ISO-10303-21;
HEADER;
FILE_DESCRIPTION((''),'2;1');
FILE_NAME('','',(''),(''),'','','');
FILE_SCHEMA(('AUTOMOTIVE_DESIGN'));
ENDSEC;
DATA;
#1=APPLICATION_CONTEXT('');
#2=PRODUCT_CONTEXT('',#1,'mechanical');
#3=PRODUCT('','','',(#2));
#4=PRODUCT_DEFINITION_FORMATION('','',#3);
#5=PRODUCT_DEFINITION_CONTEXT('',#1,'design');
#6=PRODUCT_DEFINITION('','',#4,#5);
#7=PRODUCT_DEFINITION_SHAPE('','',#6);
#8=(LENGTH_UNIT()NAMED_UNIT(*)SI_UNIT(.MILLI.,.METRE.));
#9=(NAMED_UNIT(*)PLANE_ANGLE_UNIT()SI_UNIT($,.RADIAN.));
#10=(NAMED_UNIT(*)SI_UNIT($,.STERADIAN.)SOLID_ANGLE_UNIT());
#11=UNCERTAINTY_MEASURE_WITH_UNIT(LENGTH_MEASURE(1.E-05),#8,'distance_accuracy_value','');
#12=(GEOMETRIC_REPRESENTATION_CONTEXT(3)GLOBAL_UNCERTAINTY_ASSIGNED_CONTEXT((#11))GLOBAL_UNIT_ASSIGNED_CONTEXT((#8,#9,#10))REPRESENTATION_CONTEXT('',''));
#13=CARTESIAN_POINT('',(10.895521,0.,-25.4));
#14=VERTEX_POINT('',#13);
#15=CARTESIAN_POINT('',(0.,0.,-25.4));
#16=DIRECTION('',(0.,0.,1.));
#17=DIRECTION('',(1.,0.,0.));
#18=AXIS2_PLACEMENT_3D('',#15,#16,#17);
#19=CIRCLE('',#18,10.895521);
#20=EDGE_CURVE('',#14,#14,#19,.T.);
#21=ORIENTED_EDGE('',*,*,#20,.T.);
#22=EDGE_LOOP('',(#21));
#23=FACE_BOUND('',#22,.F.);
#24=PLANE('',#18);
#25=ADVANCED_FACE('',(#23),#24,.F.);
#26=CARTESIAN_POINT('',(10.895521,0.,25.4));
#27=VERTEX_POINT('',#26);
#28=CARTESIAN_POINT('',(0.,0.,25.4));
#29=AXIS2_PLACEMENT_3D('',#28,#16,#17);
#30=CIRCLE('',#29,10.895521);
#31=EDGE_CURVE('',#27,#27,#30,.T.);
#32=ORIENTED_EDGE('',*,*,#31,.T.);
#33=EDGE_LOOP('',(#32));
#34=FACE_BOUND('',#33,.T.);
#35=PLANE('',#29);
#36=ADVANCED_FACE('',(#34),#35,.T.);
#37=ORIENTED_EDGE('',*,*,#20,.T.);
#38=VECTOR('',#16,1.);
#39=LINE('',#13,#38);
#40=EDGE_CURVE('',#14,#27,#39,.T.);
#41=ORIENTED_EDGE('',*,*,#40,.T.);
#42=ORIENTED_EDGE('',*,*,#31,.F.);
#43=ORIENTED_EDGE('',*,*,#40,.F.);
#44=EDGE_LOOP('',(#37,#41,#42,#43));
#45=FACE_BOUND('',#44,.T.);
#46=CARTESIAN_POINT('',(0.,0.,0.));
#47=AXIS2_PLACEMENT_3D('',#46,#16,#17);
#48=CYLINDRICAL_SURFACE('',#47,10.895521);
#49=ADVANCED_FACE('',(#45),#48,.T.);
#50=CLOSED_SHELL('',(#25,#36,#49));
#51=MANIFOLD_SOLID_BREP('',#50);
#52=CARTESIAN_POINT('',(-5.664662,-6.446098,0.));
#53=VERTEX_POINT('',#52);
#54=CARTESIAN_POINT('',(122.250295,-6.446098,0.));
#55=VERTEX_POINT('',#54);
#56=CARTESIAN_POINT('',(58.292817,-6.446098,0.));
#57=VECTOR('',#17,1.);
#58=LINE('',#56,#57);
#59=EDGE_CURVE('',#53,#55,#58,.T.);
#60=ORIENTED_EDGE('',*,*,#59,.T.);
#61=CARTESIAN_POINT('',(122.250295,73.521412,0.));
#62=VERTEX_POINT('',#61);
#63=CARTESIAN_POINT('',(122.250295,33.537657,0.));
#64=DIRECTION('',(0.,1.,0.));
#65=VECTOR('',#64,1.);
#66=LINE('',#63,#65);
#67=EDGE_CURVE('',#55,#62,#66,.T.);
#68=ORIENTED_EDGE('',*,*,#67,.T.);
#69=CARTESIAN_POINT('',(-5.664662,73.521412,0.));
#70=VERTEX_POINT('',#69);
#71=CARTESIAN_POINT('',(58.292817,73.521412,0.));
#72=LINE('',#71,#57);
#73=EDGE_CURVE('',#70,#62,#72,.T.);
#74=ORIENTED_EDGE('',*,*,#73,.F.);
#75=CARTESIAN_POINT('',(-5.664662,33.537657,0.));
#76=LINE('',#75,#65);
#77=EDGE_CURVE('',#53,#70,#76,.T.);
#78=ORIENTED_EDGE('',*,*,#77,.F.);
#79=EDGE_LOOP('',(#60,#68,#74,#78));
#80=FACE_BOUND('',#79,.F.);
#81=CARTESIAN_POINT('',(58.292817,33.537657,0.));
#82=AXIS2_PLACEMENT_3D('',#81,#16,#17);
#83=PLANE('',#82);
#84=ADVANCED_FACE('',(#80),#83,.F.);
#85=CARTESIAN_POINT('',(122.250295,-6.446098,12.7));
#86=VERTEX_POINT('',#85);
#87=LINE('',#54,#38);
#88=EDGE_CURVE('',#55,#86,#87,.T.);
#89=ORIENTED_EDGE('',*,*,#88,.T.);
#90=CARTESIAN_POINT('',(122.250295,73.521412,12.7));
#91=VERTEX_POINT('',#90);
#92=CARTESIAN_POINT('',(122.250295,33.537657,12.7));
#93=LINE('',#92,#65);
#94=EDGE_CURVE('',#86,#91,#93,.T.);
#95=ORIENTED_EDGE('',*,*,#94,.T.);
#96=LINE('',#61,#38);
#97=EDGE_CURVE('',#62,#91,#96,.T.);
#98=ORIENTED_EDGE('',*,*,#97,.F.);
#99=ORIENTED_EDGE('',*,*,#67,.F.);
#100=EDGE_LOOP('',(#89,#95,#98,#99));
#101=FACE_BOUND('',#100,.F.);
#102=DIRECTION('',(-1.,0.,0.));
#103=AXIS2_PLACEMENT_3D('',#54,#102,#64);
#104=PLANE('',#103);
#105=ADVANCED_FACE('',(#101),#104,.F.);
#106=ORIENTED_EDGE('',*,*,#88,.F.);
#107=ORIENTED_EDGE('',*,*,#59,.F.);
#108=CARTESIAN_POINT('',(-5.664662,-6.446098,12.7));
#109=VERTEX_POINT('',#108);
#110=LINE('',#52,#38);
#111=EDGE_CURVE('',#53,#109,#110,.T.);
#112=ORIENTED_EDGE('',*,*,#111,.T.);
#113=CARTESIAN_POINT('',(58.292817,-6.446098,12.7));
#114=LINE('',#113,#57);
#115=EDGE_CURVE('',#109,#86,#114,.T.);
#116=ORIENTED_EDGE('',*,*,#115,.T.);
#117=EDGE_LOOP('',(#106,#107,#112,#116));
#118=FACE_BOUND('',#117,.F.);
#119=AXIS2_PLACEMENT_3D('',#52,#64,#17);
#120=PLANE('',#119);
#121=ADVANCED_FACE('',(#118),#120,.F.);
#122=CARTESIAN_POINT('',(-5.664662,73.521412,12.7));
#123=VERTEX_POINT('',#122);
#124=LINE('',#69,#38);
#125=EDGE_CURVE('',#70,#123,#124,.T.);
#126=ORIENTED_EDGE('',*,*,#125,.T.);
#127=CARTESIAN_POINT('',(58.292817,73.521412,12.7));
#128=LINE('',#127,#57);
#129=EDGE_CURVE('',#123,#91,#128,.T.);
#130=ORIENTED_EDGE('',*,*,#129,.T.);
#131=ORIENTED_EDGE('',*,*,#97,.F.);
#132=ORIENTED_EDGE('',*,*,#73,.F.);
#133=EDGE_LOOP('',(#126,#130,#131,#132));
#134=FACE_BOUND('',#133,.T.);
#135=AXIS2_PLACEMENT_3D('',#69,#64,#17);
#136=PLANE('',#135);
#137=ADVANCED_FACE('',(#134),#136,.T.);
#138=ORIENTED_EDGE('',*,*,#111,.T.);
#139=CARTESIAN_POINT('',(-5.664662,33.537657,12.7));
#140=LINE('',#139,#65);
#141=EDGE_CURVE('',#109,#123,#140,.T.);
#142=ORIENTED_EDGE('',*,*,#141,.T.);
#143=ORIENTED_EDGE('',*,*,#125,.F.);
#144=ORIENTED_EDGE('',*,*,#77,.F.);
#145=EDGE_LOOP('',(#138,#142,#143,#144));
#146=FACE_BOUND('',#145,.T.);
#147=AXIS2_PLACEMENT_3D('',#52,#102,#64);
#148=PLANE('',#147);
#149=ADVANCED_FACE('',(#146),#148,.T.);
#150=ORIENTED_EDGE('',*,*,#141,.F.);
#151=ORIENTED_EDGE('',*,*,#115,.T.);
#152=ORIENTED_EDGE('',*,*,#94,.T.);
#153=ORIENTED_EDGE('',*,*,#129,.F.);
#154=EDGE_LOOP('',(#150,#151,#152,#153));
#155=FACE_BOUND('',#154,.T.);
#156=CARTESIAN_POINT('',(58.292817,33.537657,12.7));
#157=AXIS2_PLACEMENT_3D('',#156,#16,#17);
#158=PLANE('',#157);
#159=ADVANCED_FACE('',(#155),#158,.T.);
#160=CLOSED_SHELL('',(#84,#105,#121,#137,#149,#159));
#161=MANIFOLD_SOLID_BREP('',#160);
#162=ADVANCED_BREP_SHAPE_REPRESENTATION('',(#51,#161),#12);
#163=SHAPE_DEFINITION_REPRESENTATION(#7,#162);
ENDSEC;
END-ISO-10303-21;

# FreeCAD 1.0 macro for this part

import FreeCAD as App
import Part
import Sketcher
from FreeCAD import Vector
Q = App.Units.Quantity


def add_polygon(sketch, points):
    """Adds a closed chain of lines whose ends are joined by coincident constraints."""
    first, n = sketch.GeometryCount, len(points)
    for a, b in zip(points, points[1:] + points[:1]):
        sketch.addGeometry(Part.LineSegment(App.Vector(*a, 0), App.Vector(*b, 0)), False)
    for i in range(n):
        sketch.addConstraint(Sketcher.Constraint("Coincident", first + i, 2, first + (i + 1) % n, 1))

doc = App.newDocument("Part")
body = doc.addObject("PartDesign::Body", "Body")

sketch1 = body.newObject("Sketcher::SketchObject", "Sketch")
sketch1.AttachmentSupport = (doc.getObject("XY_Plane"), [""])
sketch1.MapMode = "FlatFace"
add_polygon(sketch1, [(-6, 74), (-6, -6), (122, -6), (122, 74)])
sketch1.addConstraint(Sketcher.Constraint("Vertical", 0))
sketch1.addConstraint(Sketcher.Constraint("Horizontal", 1))
sketch1.addConstraint(Sketcher.Constraint("Vertical", 2))
sketch1.addConstraint(Sketcher.Constraint("Horizontal", 3))
sketch1.addConstraint(Sketcher.Constraint("DistanceY", 0, 2, 0, 1, 79.967511))
sketch1.addConstraint(Sketcher.Constraint("DistanceY", 0, 2, -1, 1, 6.446098))
sketch1.addConstraint(Sketcher.Constraint("DistanceX", 1, 1, 1, 2, 127.914957))
sketch1.addConstraint(Sketcher.Constraint("DistanceX", 0, 2, -1, 1, 5.664662))
pad1 = body.newObject("PartDesign::Pad", "Pad")
pad1.Profile = sketch1
pad1.Length = Q("0.5 in")
body2 = doc.addObject("PartDesign::Body", "Body001")

sketch2 = body2.newObject("Sketcher::SketchObject", "Sketch001")
sketch2.AttachmentSupport = (doc.getObject("XY_Plane001"), [""])
sketch2.MapMode = "FlatFace"
sketch2.addGeometry(Part.Circle(Vector(0, 0, 0), Vector(0, 0, 1), 11), False)
sketch2.addConstraint(Sketcher.Constraint("Coincident", 0, 3, -1, 1))
sketch2.addConstraint(Sketcher.Constraint("Diameter", 0, 21.791042))
pad2 = body2.newObject("PartDesign::Pad", "Pad001")
pad2.Profile = sketch2
pad2.Type = "TwoLengths"
pad2.Length = Q("1 in")
pad2.Length2 = Q("1 in")

doc.recompute()
